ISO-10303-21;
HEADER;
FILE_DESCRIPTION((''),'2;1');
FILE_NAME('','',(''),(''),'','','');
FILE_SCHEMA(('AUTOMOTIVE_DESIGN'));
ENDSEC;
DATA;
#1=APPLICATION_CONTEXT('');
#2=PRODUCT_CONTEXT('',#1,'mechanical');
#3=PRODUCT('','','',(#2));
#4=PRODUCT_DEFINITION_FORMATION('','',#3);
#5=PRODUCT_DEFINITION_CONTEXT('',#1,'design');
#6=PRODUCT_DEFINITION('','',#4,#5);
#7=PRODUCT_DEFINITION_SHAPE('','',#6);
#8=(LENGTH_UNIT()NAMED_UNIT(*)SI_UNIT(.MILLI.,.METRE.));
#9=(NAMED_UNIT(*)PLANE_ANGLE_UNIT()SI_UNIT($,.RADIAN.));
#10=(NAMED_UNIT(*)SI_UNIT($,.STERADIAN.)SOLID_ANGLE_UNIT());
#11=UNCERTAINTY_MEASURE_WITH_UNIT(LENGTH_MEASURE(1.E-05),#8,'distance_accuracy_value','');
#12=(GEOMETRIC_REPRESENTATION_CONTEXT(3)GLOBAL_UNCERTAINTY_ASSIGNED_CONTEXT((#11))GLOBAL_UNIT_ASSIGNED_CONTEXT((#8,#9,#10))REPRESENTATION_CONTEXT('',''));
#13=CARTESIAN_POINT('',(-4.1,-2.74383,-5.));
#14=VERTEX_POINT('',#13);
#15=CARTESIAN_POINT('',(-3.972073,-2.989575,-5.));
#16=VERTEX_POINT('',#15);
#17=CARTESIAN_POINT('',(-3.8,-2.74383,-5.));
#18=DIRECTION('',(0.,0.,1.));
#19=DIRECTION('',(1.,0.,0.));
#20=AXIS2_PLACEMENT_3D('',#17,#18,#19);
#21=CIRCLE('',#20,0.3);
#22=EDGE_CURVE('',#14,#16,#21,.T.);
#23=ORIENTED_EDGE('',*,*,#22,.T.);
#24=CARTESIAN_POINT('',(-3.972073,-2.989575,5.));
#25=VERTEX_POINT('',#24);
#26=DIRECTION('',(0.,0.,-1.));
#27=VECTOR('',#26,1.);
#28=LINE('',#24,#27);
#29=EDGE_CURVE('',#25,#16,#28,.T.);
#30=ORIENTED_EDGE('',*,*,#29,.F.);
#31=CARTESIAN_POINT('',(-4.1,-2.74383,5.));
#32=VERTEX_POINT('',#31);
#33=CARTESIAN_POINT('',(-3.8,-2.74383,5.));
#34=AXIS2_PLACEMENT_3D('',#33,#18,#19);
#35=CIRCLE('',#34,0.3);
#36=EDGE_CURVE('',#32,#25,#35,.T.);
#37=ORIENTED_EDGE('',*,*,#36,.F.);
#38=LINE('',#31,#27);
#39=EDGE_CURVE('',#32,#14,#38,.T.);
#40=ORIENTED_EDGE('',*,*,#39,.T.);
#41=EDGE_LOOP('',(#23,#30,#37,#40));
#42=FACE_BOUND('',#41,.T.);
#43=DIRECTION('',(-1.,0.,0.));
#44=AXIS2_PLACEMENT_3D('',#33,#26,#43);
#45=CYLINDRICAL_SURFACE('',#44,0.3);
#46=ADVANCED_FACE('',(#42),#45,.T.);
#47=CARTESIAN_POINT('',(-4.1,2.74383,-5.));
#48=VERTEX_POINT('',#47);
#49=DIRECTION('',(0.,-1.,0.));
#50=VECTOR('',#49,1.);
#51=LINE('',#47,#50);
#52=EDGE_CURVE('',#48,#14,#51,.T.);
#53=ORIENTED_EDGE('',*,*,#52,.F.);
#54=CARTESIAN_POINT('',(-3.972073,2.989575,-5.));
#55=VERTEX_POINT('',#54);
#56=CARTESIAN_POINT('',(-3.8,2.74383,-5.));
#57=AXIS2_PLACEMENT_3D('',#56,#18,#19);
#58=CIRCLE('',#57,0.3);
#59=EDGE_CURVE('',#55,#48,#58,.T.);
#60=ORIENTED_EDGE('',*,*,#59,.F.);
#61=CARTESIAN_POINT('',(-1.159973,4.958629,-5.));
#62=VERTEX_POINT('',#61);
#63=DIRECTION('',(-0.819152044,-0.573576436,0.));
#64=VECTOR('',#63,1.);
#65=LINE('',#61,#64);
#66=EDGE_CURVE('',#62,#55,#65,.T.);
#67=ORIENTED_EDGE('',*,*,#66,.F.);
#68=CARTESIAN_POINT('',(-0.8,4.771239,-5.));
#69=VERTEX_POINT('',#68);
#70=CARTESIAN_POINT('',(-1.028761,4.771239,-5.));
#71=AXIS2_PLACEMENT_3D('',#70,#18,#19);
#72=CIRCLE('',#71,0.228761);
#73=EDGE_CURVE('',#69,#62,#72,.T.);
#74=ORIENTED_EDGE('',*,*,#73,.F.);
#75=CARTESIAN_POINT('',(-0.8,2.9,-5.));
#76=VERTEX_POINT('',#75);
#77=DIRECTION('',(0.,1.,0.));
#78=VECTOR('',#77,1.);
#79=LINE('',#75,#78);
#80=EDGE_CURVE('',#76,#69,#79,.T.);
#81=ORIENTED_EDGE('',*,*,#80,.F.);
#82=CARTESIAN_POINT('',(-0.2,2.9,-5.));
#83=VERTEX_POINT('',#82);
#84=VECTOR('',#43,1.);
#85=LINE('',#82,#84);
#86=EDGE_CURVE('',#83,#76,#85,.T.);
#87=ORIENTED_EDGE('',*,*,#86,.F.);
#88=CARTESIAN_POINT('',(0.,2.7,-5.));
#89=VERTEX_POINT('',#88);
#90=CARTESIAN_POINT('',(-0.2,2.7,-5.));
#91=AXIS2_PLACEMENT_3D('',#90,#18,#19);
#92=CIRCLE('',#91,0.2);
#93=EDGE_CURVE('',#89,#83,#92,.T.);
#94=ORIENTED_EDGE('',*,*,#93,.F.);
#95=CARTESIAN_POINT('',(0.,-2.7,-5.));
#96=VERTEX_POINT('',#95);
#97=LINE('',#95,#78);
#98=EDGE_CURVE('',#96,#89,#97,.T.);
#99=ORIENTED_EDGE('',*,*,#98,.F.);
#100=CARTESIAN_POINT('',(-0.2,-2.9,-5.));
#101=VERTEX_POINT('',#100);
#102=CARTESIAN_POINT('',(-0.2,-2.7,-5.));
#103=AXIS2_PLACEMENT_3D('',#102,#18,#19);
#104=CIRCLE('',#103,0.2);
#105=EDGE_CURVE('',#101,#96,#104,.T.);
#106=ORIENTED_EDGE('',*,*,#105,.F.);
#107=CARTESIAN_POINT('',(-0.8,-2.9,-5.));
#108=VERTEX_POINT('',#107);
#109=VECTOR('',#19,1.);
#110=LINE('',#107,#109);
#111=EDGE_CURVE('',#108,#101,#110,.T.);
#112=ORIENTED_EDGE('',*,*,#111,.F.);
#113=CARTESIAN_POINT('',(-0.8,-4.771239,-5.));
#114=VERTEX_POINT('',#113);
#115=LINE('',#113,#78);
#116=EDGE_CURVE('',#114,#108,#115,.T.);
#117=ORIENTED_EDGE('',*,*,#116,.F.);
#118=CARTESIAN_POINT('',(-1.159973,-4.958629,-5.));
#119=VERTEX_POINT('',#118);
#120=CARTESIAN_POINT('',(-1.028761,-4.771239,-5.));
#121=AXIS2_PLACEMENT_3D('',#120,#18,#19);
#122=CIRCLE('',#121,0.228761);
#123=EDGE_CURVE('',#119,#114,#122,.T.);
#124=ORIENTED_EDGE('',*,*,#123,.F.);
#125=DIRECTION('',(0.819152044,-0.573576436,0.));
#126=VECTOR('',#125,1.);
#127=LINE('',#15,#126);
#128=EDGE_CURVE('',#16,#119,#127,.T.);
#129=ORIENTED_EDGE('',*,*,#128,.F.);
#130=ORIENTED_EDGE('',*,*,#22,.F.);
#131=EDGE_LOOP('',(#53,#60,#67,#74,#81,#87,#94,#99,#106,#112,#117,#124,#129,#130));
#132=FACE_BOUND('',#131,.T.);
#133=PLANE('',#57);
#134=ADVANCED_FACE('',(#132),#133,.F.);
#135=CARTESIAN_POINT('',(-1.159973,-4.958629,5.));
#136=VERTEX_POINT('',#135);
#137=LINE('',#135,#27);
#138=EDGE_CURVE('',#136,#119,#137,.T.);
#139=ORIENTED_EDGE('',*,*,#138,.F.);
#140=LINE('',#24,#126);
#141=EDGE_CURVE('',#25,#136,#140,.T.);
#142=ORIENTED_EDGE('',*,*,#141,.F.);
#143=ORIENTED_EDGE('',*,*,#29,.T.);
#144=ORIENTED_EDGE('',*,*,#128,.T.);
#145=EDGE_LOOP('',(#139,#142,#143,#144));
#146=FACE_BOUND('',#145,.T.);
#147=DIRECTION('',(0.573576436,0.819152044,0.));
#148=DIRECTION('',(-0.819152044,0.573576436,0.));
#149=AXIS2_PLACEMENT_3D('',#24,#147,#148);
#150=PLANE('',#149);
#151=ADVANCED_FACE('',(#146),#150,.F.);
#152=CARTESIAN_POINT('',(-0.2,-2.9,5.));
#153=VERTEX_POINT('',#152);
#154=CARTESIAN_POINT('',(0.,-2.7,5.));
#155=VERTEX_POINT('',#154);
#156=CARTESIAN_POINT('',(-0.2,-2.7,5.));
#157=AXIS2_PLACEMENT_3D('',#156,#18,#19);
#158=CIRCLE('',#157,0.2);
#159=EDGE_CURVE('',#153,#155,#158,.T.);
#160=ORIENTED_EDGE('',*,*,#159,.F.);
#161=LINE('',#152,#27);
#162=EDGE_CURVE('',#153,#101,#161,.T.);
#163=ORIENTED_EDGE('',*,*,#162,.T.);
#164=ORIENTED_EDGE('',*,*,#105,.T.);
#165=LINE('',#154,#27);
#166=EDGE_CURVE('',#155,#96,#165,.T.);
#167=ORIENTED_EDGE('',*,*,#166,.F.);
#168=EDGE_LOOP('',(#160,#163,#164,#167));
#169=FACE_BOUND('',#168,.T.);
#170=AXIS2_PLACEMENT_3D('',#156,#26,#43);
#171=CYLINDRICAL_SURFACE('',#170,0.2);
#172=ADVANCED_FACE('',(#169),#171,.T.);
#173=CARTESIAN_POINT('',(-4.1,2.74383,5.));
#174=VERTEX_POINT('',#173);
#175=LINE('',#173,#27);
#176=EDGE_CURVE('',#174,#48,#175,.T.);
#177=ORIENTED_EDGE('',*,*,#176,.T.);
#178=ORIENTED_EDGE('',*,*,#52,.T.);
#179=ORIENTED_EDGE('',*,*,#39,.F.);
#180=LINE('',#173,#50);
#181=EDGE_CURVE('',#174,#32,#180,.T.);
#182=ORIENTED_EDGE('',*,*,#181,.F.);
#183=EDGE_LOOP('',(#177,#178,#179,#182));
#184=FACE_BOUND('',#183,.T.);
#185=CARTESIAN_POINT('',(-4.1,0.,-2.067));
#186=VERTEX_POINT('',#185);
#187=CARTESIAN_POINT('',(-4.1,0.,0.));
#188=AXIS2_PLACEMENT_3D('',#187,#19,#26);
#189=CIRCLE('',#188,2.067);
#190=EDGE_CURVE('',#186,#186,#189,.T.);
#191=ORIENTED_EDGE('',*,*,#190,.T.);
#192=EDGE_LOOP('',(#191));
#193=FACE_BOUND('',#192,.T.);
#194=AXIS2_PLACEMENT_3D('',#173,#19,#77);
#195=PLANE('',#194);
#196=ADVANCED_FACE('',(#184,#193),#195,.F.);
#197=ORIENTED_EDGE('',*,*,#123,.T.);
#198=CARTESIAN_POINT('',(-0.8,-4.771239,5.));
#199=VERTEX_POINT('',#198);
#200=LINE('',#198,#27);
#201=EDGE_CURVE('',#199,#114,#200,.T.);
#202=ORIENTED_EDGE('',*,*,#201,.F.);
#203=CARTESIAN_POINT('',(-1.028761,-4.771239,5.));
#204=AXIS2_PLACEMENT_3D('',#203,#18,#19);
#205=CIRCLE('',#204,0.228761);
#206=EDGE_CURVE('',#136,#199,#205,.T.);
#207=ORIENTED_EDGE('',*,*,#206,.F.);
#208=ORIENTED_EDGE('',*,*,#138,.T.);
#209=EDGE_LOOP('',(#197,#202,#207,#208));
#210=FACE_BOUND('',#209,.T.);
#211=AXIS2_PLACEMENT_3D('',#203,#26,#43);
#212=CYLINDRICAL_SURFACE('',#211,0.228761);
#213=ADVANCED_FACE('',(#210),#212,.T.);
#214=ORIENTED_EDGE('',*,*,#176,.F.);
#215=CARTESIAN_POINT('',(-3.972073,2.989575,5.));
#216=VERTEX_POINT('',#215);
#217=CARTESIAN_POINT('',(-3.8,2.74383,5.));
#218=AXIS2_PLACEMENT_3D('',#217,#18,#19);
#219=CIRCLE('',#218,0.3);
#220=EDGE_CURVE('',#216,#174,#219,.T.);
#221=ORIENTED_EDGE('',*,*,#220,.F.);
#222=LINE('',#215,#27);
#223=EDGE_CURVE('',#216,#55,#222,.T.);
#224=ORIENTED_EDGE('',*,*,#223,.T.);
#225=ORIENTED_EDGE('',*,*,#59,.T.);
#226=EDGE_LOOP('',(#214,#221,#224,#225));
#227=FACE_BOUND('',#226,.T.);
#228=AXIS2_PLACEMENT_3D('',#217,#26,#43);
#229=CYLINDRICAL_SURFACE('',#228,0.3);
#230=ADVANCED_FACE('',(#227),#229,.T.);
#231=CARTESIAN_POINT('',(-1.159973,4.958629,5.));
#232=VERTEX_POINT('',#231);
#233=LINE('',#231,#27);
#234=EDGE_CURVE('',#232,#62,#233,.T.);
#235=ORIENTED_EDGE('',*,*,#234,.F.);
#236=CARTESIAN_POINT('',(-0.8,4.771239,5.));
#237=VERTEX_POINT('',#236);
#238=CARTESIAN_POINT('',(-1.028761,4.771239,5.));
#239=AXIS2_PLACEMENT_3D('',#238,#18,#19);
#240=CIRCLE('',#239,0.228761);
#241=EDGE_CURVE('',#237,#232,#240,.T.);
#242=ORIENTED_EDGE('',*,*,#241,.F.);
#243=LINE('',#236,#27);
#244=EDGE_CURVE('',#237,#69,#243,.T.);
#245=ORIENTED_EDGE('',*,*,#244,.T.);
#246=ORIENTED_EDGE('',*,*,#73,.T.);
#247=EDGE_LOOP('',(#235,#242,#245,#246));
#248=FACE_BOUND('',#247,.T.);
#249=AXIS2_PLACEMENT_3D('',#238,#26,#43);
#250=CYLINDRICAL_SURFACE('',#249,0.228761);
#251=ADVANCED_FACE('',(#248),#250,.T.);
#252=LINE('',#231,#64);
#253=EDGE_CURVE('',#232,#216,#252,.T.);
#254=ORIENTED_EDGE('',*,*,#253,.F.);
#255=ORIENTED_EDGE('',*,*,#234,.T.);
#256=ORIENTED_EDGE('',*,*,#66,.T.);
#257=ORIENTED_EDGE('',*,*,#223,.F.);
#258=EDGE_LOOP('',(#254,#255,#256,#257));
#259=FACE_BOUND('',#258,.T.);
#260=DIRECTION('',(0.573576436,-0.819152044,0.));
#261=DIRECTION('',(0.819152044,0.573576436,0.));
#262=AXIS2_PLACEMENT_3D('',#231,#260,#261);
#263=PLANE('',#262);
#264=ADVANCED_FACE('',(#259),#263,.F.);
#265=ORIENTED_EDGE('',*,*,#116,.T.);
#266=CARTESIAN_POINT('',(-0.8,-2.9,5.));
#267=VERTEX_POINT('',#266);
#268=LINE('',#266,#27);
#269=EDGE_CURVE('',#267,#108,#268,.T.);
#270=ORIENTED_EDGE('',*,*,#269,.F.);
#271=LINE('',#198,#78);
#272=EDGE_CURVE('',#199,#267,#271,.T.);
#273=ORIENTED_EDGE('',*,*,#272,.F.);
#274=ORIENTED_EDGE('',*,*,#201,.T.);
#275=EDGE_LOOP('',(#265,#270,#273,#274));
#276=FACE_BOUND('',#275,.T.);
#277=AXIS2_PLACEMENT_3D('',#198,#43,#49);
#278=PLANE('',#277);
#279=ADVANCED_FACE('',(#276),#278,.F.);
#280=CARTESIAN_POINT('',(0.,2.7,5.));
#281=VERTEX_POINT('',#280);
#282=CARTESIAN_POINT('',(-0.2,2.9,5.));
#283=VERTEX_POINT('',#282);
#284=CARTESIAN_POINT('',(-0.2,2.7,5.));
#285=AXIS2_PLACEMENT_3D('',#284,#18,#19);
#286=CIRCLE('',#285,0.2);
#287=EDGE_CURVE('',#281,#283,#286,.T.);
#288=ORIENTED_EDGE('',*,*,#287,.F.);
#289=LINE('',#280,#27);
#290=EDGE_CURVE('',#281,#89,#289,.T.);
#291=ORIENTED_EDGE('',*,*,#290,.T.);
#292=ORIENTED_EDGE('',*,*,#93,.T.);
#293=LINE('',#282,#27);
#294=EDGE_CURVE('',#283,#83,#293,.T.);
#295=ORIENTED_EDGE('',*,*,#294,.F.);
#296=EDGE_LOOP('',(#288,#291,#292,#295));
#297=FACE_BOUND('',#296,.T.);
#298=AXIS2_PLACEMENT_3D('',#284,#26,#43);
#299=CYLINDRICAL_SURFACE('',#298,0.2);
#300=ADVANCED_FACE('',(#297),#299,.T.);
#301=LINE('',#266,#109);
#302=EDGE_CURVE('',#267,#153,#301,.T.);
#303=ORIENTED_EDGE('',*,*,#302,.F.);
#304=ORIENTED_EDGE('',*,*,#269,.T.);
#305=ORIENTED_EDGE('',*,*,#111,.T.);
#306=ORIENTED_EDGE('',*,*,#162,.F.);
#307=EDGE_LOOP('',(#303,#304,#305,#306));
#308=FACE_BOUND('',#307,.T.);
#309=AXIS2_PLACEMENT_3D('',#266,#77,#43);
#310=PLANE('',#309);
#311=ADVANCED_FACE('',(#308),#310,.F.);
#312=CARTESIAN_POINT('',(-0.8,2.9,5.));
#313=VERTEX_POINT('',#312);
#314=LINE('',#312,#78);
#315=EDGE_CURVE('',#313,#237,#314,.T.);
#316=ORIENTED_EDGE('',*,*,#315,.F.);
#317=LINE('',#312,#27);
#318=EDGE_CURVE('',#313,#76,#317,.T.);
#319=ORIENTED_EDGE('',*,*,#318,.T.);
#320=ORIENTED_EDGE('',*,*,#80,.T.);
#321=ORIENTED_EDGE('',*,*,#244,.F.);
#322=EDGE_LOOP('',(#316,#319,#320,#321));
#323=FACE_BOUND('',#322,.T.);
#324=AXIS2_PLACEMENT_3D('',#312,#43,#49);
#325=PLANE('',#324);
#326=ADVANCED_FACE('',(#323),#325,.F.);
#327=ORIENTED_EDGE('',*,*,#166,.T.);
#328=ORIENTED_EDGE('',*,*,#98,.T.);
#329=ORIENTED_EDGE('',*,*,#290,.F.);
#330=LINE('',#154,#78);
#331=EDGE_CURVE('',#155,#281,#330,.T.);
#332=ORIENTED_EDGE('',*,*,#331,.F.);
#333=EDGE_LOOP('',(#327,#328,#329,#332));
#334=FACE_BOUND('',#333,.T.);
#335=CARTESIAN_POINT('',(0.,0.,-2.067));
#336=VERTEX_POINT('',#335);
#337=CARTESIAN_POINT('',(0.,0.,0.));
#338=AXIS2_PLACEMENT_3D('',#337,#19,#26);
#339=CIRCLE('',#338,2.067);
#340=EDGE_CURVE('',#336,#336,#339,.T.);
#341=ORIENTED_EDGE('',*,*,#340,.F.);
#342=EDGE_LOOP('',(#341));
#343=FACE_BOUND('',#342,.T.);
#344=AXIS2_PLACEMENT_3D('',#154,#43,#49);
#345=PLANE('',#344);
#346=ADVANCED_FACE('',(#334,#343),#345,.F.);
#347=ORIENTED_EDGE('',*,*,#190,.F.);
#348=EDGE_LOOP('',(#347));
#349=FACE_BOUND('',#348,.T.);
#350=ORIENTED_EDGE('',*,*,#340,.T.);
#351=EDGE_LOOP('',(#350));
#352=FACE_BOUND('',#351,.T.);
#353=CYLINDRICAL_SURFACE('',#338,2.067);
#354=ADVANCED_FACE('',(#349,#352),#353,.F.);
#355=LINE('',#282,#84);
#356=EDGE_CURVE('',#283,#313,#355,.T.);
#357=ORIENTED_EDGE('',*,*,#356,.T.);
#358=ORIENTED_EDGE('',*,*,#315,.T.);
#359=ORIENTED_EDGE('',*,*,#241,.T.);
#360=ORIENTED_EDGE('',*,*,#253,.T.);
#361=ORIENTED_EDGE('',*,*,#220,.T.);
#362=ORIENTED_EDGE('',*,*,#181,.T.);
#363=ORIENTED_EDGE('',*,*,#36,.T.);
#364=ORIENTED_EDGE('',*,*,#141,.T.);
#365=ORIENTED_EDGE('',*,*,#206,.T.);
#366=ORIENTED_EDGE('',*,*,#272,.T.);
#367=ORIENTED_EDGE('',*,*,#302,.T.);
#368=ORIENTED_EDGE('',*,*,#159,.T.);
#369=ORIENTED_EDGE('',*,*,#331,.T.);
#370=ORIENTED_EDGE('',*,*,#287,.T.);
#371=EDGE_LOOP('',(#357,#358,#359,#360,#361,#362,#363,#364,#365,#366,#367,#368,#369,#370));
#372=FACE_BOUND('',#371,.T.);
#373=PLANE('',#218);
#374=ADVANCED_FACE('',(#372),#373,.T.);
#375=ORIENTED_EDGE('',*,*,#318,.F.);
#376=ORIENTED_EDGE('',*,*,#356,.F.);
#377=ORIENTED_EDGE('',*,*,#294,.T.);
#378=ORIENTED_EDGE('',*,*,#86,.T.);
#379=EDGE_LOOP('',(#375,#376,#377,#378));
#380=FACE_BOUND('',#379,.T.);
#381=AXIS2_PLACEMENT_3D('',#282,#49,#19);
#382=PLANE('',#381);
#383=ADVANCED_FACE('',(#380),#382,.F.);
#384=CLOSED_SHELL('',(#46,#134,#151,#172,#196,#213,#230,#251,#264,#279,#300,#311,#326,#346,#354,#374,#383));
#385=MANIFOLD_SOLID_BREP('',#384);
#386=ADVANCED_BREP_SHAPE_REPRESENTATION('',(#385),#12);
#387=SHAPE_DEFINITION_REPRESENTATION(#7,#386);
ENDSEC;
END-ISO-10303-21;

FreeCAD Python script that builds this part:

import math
import FreeCAD as App
import Part
import Sketcher
from FreeCAD import Vector
Q = App.Units.Quantity

doc = App.newDocument("Part")
body = doc.addObject("PartDesign::Body", "Body")

sketch1 = body.newObject("Sketcher::SketchObject", "Sketch")
sketch1.AttachmentSupport = (doc.getObject("XY_Plane"), [""])
sketch1.MapMode = "FlatFace"
sketch1.addGeometry([
    Part.LineSegment(Vector(-4.1, 2.74383, 0), Vector(-4.1, -2.74383, 0)),
    Part.ArcOfCircle(Part.Circle(Vector(-3.8, -2.74383, 0), Vector(0, 0, 1), 0.3), math.radians(180), math.radians(235)),
    Part.LineSegment(Vector(-3.972073, -2.989575, 0), Vector(-1.159973, -4.958629, 0)),
    Part.ArcOfCircle(Part.Circle(Vector(-1.028761, -4.771239, 0), Vector(0, 0, 1), 0.228761), math.radians(-125), math.radians(0)),
    Part.LineSegment(Vector(-0.8, -4.771239, 0), Vector(-0.8, -2.9, 0)),
    Part.LineSegment(Vector(-0.8, -2.9, 0), Vector(-0.2, -2.9, 0)),
    Part.ArcOfCircle(Part.Circle(Vector(-0.2, -2.7, 0), Vector(0, 0, 1), 0.2), math.radians(-90), math.radians(0)),
    Part.LineSegment(Vector(0, -2.7, 0), Vector(0, 2.7, 0)),
    Part.ArcOfCircle(Part.Circle(Vector(-0.2, 2.7, 0), Vector(0, 0, 1), 0.2), math.radians(0), math.radians(90)),
    Part.LineSegment(Vector(-0.2, 2.9, 0), Vector(-0.8, 2.9, 0)),
    Part.LineSegment(Vector(-0.8, 2.9, 0), Vector(-0.8, 4.771239, 0)),
    Part.ArcOfCircle(Part.Circle(Vector(-1.028761, 4.771239, 0), Vector(0, 0, 1), 0.228761), math.radians(0), math.radians(125)),
    Part.LineSegment(Vector(-1.159973, 4.958629, 0), Vector(-3.972073, 2.989575, 0)),
    Part.ArcOfCircle(Part.Circle(Vector(-3.8, 2.74383, 0), Vector(0, 0, 1), 0.3), math.radians(125), math.radians(180)),
], False)
sketch1.addConstraint([
    Sketcher.Constraint("Tangent", 0, 2, 1, 1),
    Sketcher.Constraint("Tangent", 1, 2, 2, 1),
    Sketcher.Constraint("Tangent", 2, 2, 3, 1),
    Sketcher.Constraint("Tangent", 3, 2, 4, 1),
    Sketcher.Constraint("Coincident", 4, 2, 5, 1),
    Sketcher.Constraint("Tangent", 5, 2, 6, 1),
    Sketcher.Constraint("Tangent", 6, 2, 7, 1),
    Sketcher.Constraint("Tangent", 7, 2, 8, 1),
    Sketcher.Constraint("Tangent", 8, 2, 9, 1),
    Sketcher.Constraint("Coincident", 9, 2, 10, 1),
    Sketcher.Constraint("Tangent", 10, 2, 11, 1),
    Sketcher.Constraint("Tangent", 11, 2, 12, 1),
    Sketcher.Constraint("Tangent", 12, 2, 13, 1),
    Sketcher.Constraint("Tangent", 13, 2, 0, 1),
    Sketcher.Constraint("Vertical", 0),
    Sketcher.Constraint("Vertical", 4),
    Sketcher.Constraint("Horizontal", 5),
    Sketcher.Constraint("Vertical", 7),
    Sketcher.Constraint("Horizontal", 9),
    Sketcher.Constraint("Vertical", 10),
    Sketcher.Constraint("Equal", 6, 8),
    Sketcher.Constraint("Equal", 3, 11),
    Sketcher.Constraint("Equal", 1, 13),
    Sketcher.Constraint("Symmetric", 6, 2, 7, 2, -1, 1),
    Sketcher.Constraint("Symmetric", 3, 3, 11, 3, -1),
    Sketcher.Constraint("Vertical", 2, 2, 11, 2),
    Sketcher.Constraint("Radius", 1, Q("0.3 mm")),
    Sketcher.Constraint("Radius", 6, Q("0.2 mm")),
    Sketcher.Constraint("Angle", 2, Q("-35 deg")),
    Sketcher.Constraint("DistanceX", 5, 1, 5, 2, Q("0.6 mm")),
    Sketcher.Constraint("DistanceY", 7, 1, 7, 2, Q("5.4 mm")),
    Sketcher.Constraint("DistanceX", 1, 3, 3, 2, Q("3 mm")),
    Sketcher.Constraint("Radius", 3, Q("0.228761 mm")),
    Sketcher.Constraint("DistanceY", 0, 2, 0, 1, Q("5.48766 mm")),
])
pad1 = body.newObject("PartDesign::Pad", "Pad")
pad1.Profile = sketch1
pad1.Length = 10
pad1.Midplane = True

sketch2 = body.newObject("Sketcher::SketchObject", "Sketch001")
sketch2.AttachmentSupport = (doc.getObject("YZ_Plane"), [""])
sketch2.MapMode = "FlatFace"
sketch2.addGeometry(Part.Circle(Vector(0, 0, 0), Vector(0, 0, 1), 2.067), False)
sketch2.addConstraint([
    Sketcher.Constraint("Coincident", 0, 3, -1, 1),
    Sketcher.Constraint("Diameter", 0, Q("4.134 mm")),
])
doc.recompute()
hole = body.newObject("PartDesign::Hole", "Hole")
hole.Profile = sketch2
hole.ThreadType = "None"
hole.Diameter = 4.134
hole.DepthType = "ThroughAll"

doc.recompute()
